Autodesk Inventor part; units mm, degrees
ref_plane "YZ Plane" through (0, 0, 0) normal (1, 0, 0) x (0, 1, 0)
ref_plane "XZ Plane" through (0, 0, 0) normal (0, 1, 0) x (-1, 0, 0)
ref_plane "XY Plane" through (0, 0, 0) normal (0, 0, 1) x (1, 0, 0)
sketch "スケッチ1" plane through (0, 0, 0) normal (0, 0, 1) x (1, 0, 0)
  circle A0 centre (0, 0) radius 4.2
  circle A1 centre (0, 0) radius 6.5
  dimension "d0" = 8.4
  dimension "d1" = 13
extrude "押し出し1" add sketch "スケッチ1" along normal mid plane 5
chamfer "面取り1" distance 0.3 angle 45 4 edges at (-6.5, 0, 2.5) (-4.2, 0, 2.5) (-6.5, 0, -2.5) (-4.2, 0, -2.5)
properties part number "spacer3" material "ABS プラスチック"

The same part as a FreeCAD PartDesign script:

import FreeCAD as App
import Part
import Sketcher

V = App.Vector
Q = App.Units.Quantity


def edges_at(feature, points):
    """Names of the edges that pass closest to the given points."""
    edges = feature.Shape.Edges
    near = lambda p: min(range(len(edges)), key=lambda i: edges[i].distToShape(Part.Vertex(*p))[0])
    return sorted({f"Edge{near(p) + 1}" for p in points})

doc = App.newDocument("Part")
body = doc.addObject("PartDesign::Body", "Body")

# Sketch on XY plane
sketch1 = body.newObject("Sketcher::SketchObject", "Sketch")
sketch1.AttachmentSupport = (doc.getObject("XY_Plane"), [""])
sketch1.MapMode = "FlatFace"
sketch1.addGeometry([
    Part.Circle(V(0, 0, 0), V(0, 0, 1), 6.5),
    Part.Circle(V(0, 0, 0), V(0, 0, 1), 4.2),
], False)
sketch1.addConstraint([
    Sketcher.Constraint("Coincident", 0, 3, -1, 1),
    Sketcher.Constraint("Coincident", 1, 3, -1, 1),
    Sketcher.Constraint("Diameter", 0, Q("13 mm")),
    Sketcher.Constraint("Diameter", 1, Q("8.4 mm")),
])
pad1 = body.newObject("PartDesign::Pad", "Pad")
pad1.Profile = sketch1
pad1.Length = 5
pad1.Midplane = True
doc.recompute()

chamfer = body.newObject("PartDesign::Chamfer", "Chamfer")
chamfer.Base = (pad1, edges_at(pad1, [
    (-6.5, 0, 2.5),
    (-4.2, 0, 2.5),
    (-6.5, 0, -2.5),
    (-4.2, 0, -2.5),
]))
chamfer.Size = 0.3

doc.recompute()
